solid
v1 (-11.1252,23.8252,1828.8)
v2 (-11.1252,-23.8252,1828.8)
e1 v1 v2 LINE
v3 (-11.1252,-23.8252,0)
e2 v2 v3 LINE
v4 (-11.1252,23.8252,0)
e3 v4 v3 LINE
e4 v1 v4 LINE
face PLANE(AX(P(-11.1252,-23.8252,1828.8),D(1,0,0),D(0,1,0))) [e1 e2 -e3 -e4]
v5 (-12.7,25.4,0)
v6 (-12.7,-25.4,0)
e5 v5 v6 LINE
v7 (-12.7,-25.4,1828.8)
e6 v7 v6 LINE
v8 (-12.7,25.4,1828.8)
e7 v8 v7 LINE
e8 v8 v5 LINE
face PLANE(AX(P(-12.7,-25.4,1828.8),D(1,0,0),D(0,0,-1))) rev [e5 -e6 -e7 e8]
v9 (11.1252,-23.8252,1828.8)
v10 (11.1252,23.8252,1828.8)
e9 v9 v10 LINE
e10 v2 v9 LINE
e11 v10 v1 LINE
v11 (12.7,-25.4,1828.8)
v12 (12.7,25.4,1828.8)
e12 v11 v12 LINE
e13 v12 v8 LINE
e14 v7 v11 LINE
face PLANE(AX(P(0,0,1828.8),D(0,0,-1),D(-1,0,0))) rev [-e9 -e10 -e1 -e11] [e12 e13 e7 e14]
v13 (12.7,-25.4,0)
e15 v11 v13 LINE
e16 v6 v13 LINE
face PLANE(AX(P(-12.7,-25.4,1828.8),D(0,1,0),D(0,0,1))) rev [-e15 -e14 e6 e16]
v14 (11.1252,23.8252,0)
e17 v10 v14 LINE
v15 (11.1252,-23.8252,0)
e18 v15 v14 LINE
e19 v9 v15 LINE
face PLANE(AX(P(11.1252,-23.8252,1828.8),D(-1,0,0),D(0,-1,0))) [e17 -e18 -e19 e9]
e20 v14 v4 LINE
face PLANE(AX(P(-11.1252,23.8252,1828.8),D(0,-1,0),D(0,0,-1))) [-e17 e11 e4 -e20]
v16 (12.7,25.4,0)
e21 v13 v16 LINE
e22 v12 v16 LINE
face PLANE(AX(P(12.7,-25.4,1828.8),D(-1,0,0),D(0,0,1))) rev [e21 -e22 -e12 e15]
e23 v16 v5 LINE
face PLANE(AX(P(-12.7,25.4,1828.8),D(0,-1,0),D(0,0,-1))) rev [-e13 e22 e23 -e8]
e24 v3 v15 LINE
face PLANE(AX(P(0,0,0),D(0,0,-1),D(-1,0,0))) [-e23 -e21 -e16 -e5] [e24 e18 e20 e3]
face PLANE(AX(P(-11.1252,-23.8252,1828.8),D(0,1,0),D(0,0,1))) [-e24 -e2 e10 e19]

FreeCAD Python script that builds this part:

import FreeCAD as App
import Part
import Sketcher
Q = App.Units.Quantity

doc = App.newDocument("Part")
params = doc.addObject("Spreadsheet::Sheet", "Params")
for row, (alias, value) in enumerate([
    ("sketch1_width", "1 in"),
    ("sketch1_height", "2 in"),
    ("sketch1_width2", "0.876 in"),
    ("sketch1_height2", "1.876 in"),
    ("pad1_length", "72 in"),
], start=1):
    params.set(f"A{row}", alias)
    params.set(f"B{row}", "=" + value)
    params.setAlias(f"B{row}", alias)

body = doc.addObject("PartDesign::Body", "Body")

# Sketch on XY plane
sketch1 = body.newObject("Sketcher::SketchObject", "Sketch")
sketch1.AttachmentSupport = (doc.getObject("XY_Plane"), [""])
sketch1.MapMode = "FlatFace"
sketch1.addGeometry([
    Part.LineSegment(App.Vector(-13, 25, 0), App.Vector(-13, -25, 0)),  # 0
    Part.LineSegment(App.Vector(-13, -25, 0), App.Vector(13, -25, 0)),  # 1
    Part.LineSegment(App.Vector(13, -25, 0), App.Vector(13, 25, 0)),  # 2
    Part.LineSegment(App.Vector(13, 25, 0), App.Vector(-13, 25, 0)),  # 3
    Part.LineSegment(App.Vector(11, -24, 0), App.Vector(-11, -24, 0)),  # 4
    Part.LineSegment(App.Vector(-11, -24, 0), App.Vector(-11, 24, 0)),  # 5
    Part.LineSegment(App.Vector(-11, 24, 0), App.Vector(11, 24, 0)),  # 6
    Part.LineSegment(App.Vector(11, 24, 0), App.Vector(11, -24, 0)),  # 7
], False)
sketch1.addConstraint([
    Sketcher.Constraint("Coincident", 0, 2, 1, 1),
    Sketcher.Constraint("Coincident", 1, 2, 2, 1),
    Sketcher.Constraint("Coincident", 2, 2, 3, 1),
    Sketcher.Constraint("Coincident", 3, 2, 0, 1),
    Sketcher.Constraint("Coincident", 4, 2, 5, 1),
    Sketcher.Constraint("Coincident", 5, 2, 6, 1),
    Sketcher.Constraint("Coincident", 6, 2, 7, 1),
    Sketcher.Constraint("Coincident", 7, 2, 4, 1),
    Sketcher.Constraint("Vertical", 0),
    Sketcher.Constraint("Horizontal", 1),
    Sketcher.Constraint("Vertical", 2),
    Sketcher.Constraint("Horizontal", 3),
    Sketcher.Constraint("Horizontal", 4),
    Sketcher.Constraint("Vertical", 5),
    Sketcher.Constraint("Horizontal", 6),
    Sketcher.Constraint("Vertical", 7),
    Sketcher.Constraint("Symmetric", 0, 2, 2, 2, -1, 1),
    Sketcher.Constraint("Symmetric", 4, 2, 6, 2, -1, 1),
    Sketcher.Constraint("DistanceX", 1, 1, 1, 2, Q("1 in")),
    Sketcher.Constraint("DistanceY", 0, 2, 0, 1, Q("2 in")),
    Sketcher.Constraint("DistanceX", 4, 2, 4, 1, Q("0.876 in")),
    Sketcher.Constraint("DistanceY", 5, 1, 5, 2, Q("1.876 in")),
])
sketch1.setExpression("Constraints[18]", "Params.sketch1_width")
sketch1.setExpression("Constraints[19]", "Params.sketch1_height")
sketch1.setExpression("Constraints[20]", "Params.sketch1_width2")
sketch1.setExpression("Constraints[21]", "Params.sketch1_height2")
pad1 = body.newObject("PartDesign::Pad", "Pad")
pad1.Profile = sketch1
pad1.setExpression("Length", "Params.pad1_length")

doc.recompute()
